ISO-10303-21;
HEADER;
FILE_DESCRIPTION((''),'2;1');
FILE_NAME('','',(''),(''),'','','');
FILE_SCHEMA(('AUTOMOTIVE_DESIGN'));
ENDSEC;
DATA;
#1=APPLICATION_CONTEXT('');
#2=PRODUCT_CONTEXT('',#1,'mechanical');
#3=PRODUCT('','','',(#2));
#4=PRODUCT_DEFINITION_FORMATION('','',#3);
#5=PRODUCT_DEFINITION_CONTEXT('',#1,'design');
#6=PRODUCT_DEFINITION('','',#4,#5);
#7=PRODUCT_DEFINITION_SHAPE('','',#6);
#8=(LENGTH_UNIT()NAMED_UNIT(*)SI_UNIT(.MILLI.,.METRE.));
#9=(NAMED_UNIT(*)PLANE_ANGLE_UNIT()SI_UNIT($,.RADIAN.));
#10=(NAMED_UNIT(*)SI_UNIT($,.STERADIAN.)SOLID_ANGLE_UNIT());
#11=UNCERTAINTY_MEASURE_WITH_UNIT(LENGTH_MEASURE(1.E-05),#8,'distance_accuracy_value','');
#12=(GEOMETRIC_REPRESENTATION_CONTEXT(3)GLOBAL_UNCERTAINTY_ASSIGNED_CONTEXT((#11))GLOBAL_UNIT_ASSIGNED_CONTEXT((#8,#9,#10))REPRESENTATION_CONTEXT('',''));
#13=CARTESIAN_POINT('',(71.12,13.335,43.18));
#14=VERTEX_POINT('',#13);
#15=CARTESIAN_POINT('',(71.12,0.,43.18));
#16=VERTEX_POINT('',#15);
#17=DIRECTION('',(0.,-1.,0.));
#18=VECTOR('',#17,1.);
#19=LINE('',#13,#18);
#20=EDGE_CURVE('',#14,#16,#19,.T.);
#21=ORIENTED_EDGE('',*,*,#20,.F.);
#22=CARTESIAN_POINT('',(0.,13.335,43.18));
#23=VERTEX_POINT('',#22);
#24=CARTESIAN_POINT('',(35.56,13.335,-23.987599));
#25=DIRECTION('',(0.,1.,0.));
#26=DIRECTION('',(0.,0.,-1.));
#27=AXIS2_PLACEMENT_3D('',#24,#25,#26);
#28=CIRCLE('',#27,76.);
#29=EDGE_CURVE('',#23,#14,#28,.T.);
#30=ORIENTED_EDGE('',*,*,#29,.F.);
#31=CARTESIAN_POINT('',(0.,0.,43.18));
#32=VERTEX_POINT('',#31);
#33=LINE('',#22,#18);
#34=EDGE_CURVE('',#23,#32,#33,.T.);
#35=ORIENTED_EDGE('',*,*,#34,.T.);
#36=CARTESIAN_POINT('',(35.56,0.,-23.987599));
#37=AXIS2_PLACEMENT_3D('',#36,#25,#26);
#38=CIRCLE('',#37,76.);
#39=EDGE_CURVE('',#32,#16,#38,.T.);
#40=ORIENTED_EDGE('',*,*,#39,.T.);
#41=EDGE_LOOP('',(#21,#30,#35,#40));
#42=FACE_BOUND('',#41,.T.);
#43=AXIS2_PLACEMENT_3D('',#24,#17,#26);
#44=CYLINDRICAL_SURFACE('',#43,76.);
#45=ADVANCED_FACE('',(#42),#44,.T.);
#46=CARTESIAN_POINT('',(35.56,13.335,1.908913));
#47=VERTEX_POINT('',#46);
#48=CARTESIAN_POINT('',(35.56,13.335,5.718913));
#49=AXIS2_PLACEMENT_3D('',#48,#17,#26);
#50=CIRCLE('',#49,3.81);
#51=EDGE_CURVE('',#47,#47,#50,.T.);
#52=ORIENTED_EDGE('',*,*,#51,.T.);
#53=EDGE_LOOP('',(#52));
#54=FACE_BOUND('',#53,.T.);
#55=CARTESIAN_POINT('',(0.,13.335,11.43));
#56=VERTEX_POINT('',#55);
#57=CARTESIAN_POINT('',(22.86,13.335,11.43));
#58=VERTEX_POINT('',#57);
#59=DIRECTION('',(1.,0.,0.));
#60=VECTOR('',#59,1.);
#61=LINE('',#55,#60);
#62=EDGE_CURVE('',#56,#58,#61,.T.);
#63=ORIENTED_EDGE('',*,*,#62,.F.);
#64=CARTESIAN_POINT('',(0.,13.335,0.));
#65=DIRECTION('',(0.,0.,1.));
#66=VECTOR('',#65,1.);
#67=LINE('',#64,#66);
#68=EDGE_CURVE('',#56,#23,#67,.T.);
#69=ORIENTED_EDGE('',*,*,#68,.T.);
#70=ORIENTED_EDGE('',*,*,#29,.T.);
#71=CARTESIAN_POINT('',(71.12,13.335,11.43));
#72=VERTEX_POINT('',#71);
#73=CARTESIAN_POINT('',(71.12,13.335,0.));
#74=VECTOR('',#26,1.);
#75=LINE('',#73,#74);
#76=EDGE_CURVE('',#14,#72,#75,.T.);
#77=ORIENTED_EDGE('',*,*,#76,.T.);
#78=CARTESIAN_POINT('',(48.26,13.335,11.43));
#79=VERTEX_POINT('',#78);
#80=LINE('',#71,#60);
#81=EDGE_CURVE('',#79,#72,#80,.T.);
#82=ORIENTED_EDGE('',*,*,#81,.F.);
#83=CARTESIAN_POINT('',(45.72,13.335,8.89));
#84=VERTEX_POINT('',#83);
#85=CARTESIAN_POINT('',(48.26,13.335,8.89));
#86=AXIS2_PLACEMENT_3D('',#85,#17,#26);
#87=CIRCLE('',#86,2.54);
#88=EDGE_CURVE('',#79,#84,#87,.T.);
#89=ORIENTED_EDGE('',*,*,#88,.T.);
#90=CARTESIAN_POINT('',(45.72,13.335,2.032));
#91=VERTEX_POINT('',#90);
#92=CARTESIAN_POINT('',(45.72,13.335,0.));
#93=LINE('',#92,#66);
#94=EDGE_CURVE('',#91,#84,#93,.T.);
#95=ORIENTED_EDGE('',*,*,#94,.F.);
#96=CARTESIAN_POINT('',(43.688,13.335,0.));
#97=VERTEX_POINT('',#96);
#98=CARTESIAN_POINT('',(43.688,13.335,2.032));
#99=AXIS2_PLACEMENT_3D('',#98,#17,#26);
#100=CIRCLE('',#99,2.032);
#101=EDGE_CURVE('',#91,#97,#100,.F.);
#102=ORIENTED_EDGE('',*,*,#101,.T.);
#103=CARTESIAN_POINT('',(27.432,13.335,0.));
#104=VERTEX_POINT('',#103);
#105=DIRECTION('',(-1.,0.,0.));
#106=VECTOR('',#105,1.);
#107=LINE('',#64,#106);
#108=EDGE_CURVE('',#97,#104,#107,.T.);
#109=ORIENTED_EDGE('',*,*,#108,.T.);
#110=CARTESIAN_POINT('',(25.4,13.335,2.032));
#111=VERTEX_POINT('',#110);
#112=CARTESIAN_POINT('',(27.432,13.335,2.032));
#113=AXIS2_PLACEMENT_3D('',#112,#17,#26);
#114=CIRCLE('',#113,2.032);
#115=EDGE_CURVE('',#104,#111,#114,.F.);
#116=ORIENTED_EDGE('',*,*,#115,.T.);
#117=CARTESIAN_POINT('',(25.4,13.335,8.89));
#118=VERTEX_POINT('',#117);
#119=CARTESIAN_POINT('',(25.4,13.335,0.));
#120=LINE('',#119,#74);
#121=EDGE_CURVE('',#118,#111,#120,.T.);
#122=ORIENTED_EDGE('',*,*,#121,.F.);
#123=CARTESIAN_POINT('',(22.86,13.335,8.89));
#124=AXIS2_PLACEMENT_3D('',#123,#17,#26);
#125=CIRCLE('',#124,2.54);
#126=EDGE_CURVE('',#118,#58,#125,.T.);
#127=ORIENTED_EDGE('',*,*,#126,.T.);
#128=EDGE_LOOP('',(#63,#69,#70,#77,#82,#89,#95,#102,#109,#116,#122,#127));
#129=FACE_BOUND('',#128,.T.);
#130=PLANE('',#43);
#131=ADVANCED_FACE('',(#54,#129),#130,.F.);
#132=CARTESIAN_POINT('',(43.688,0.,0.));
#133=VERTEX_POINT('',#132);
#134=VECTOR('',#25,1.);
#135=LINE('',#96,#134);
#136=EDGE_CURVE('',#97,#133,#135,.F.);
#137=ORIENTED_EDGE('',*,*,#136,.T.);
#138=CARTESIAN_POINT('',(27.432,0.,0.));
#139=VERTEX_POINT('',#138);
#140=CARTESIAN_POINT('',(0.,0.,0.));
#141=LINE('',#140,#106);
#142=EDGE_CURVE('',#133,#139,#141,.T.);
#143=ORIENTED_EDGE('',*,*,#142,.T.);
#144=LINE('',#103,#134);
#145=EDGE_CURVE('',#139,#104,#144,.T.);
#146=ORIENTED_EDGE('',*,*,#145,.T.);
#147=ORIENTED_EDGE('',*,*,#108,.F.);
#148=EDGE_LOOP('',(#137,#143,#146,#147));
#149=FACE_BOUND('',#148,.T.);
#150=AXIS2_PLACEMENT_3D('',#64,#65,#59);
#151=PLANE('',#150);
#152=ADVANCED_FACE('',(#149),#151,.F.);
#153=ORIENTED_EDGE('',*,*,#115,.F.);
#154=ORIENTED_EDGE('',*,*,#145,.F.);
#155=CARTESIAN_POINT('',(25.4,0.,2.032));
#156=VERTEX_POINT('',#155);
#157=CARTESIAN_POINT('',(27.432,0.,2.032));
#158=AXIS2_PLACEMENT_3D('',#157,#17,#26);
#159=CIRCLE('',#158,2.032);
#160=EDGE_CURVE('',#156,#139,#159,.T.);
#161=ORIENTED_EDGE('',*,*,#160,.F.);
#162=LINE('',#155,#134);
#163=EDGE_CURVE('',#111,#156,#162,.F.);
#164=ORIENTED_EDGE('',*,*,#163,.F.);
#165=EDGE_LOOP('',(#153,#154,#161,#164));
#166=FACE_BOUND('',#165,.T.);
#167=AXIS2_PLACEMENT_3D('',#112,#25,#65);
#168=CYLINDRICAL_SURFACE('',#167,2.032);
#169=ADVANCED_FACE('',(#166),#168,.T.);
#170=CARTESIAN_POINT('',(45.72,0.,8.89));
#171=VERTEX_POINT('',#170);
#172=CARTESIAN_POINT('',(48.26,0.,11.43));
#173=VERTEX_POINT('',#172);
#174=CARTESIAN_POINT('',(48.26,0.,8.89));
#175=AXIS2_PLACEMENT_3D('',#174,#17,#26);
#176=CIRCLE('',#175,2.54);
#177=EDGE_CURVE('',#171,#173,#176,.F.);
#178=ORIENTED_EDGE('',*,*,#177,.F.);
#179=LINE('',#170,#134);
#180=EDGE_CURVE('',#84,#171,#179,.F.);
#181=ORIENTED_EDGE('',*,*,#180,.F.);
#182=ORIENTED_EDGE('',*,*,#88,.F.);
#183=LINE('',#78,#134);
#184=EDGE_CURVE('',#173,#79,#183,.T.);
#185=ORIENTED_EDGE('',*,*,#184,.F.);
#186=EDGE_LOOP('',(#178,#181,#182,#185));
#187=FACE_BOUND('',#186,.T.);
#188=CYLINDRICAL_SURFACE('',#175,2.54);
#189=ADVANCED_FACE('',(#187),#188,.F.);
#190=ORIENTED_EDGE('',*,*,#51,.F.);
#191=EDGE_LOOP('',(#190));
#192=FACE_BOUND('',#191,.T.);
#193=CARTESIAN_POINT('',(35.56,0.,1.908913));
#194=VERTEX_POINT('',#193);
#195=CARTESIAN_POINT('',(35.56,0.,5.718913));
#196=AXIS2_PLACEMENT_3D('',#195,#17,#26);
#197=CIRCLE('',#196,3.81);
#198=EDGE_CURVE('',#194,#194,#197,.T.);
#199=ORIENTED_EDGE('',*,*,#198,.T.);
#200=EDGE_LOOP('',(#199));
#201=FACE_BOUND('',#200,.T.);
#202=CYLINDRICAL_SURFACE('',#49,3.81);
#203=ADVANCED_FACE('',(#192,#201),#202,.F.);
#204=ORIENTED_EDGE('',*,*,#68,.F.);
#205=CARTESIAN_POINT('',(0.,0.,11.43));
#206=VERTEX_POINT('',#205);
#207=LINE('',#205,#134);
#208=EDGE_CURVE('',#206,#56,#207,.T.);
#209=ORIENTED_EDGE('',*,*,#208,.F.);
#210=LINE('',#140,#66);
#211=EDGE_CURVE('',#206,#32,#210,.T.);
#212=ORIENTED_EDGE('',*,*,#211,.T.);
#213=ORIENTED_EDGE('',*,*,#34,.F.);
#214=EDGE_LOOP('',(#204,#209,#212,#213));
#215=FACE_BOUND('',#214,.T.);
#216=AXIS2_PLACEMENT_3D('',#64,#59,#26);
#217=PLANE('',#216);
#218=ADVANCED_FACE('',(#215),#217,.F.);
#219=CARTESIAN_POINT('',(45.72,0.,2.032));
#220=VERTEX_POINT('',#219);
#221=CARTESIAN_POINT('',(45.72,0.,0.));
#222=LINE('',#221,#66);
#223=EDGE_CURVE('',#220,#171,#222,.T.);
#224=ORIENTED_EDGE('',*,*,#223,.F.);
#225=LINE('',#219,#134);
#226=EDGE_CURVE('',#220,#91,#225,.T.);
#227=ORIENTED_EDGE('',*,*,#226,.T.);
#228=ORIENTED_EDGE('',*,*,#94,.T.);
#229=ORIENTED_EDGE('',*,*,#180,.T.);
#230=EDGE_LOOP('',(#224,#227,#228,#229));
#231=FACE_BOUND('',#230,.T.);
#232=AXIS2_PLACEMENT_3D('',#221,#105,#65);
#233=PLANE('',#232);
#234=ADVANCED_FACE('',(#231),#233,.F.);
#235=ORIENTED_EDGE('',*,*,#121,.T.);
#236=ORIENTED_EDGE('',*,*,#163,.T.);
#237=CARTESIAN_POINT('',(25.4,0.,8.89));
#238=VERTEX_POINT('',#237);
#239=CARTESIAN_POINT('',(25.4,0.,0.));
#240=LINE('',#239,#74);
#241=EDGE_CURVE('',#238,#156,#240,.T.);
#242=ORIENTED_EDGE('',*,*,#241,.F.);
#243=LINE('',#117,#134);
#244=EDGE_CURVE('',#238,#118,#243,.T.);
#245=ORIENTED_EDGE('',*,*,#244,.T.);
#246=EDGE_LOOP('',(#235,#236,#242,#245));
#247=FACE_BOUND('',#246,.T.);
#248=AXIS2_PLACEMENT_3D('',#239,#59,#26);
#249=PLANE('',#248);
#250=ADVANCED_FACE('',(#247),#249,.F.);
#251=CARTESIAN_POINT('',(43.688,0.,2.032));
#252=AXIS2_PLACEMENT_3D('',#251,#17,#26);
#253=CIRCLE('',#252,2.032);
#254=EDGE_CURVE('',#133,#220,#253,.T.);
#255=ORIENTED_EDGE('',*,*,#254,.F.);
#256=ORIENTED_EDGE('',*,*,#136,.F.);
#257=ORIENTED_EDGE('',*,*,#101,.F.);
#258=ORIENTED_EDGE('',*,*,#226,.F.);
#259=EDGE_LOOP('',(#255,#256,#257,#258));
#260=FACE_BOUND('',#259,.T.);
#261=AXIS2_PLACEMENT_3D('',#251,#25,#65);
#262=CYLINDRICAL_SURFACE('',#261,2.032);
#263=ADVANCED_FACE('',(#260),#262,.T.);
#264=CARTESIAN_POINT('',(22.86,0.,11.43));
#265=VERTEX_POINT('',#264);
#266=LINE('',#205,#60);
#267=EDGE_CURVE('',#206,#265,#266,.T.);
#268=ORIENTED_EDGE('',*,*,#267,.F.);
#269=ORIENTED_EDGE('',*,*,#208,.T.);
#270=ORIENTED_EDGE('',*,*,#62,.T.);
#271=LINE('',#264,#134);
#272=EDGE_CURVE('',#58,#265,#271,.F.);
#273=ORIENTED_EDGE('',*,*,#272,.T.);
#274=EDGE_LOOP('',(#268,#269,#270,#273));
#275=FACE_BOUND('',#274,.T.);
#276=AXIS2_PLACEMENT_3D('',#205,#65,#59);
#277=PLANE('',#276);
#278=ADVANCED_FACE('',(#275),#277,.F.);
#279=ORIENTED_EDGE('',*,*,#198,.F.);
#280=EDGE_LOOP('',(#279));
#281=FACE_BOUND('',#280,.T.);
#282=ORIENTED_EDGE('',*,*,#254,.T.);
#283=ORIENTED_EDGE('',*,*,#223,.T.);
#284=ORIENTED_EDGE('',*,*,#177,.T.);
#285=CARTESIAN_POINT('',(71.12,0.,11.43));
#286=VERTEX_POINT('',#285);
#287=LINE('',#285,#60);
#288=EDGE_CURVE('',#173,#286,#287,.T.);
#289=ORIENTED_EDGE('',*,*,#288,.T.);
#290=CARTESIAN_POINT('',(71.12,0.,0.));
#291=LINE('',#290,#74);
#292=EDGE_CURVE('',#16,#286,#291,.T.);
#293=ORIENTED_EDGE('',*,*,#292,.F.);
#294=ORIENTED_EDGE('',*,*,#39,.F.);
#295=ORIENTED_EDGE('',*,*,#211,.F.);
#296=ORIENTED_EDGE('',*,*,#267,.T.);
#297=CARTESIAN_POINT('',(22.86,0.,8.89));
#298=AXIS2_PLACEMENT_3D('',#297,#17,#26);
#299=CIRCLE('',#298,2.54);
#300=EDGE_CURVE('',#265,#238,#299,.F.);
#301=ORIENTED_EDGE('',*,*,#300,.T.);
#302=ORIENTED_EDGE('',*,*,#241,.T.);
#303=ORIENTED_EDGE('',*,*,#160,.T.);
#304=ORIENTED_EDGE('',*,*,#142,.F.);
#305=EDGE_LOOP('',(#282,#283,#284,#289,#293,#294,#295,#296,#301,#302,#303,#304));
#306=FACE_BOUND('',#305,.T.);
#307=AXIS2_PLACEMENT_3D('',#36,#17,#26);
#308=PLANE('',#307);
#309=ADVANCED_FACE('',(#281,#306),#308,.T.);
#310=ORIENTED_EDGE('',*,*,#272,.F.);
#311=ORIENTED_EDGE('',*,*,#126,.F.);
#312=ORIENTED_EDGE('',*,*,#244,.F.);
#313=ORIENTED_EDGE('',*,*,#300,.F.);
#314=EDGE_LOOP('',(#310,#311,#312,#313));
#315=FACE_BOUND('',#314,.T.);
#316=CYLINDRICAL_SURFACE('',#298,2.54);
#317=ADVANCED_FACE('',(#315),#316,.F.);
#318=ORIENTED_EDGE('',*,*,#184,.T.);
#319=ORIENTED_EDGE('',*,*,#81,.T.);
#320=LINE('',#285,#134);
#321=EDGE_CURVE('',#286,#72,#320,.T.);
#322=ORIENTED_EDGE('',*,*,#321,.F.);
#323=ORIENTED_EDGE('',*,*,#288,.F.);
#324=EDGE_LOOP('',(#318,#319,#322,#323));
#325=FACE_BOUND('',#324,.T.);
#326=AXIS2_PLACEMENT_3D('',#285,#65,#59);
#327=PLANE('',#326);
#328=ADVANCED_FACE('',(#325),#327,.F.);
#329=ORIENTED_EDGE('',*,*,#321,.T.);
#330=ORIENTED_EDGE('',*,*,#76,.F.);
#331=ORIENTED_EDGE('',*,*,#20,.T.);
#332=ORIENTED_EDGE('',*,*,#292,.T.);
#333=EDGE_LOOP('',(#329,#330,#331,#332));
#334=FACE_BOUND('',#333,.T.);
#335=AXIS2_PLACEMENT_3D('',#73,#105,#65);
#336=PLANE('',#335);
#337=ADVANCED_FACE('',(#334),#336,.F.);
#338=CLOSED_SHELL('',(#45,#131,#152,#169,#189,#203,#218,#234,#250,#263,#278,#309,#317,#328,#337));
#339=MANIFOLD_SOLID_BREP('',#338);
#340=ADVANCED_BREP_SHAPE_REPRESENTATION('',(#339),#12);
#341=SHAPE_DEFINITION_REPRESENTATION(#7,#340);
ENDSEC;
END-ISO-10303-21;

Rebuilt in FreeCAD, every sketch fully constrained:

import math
import FreeCAD as App
import Part
import Sketcher
from FreeCAD import Vector
Q = App.Units.Quantity


def edges_at(feature, points):
    """Names of the edges that pass closest to the given points."""
    edges = feature.Shape.Edges
    near = lambda p: min(range(len(edges)), key=lambda i: edges[i].distToShape(Part.Vertex(*p))[0])
    return sorted({f"Edge{near(p) + 1}" for p in points})


def add_polygon(sketch, points):
    """Adds a closed chain of lines whose ends are joined by coincident constraints."""
    first, n = sketch.GeometryCount, len(points)
    for a, b in zip(points, points[1:] + points[:1]):
        sketch.addGeometry(Part.LineSegment(App.Vector(*a, 0), App.Vector(*b, 0)), False)
    for i in range(n):
        sketch.addConstraint(Sketcher.Constraint("Coincident", first + i, 2, first + (i + 1) % n, 1))

doc = App.newDocument("Part")
body = doc.addObject("PartDesign::Body", "Body")

# Sketch on XZ plane
sketch1 = body.newObject("Sketcher::SketchObject", "Sketch")
sketch1.AttachmentSupport = (doc.getObject("XZ_Plane"), [""])
sketch1.MapMode = "FlatFace"
sketch1.addGeometry(Part.LineSegment(Vector(71.12, 0, 0), Vector(0, 0, 0)), False)
sketch1.addGeometry(Part.LineSegment(Vector(0, 0, 0), Vector(0, 43.18, 0)), False)
sketch1.addGeometry(Part.ArcOfCircle(Part.Circle(Vector(35.56, -23.987599, 0), Vector(0, 0, 1), 76), math.radians(62.102274), math.radians(117.897726)), False)
sketch1.addGeometry(Part.LineSegment(Vector(71.12, 43.18, 0), Vector(71.12, 0, 0)), False)
sketch1.addConstraint(Sketcher.Constraint("Coincident", 0, 2, 1, 1))
sketch1.addConstraint(Sketcher.Constraint("Coincident", 1, 2, 2, 2))
sketch1.addConstraint(Sketcher.Constraint("Coincident", 2, 1, 3, 1))
sketch1.addConstraint(Sketcher.Constraint("Coincident", 3, 2, 0, 1))
sketch1.addConstraint(Sketcher.Constraint("Horizontal", 0))
sketch1.addConstraint(Sketcher.Constraint("Vertical", 1))
sketch1.addConstraint(Sketcher.Constraint("Vertical", 3))
sketch1.addConstraint(Sketcher.Constraint("Coincident", 0, 2, -1, 1))
sketch1.addConstraint(Sketcher.Constraint("Horizontal", 1, 2, 2, 1))
sketch1.addConstraint(Sketcher.Constraint("DistanceX", 0, 2, 0, 1, Q("2.8 in")))
sketch1.addConstraint(Sketcher.Constraint("DistanceY", 1, 1, 1, 2, Q("1.7 in")))
sketch1.addConstraint(Sketcher.Constraint("Radius", 2, Q("76 mm")))
pad1 = body.newObject("PartDesign::Pad", "Pad")
pad1.Profile = sketch1
pad1.Length = Q("0.525 in")
pad1.Reversed = True

# Sketch on XZ plane
sketch2 = body.newObject("Sketcher::SketchObject", "Sketch001")
sketch2.AttachmentSupport = (doc.getObject("XZ_Plane"), [""])
sketch2.MapMode = "FlatFace"
sketch2.AttachmentOffset = App.Placement(Vector(0, 0, -0.525 * 25.4), App.Rotation())
add_polygon(sketch2, [(45.72, 0), (45.72, 11.43), (71.12, 11.43), (71.12, 0)])  # lines 0-3
add_polygon(sketch2, [(0, 0), (0, 11.43), (25.4, 11.43), (25.4, 0)])  # lines 4-7
sketch2.addConstraint(Sketcher.Constraint("Vertical", 0))
sketch2.addConstraint(Sketcher.Constraint("Horizontal", 1))
sketch2.addConstraint(Sketcher.Constraint("Vertical", 2))
sketch2.addConstraint(Sketcher.Constraint("Horizontal", 3))
sketch2.addConstraint(Sketcher.Constraint("Vertical", 4))
sketch2.addConstraint(Sketcher.Constraint("Horizontal", 5))
sketch2.addConstraint(Sketcher.Constraint("Vertical", 6))
sketch2.addConstraint(Sketcher.Constraint("Horizontal", 7))
sketch2.addConstraint(Sketcher.Constraint("Coincident", 7, 2, -1, 1))
sketch2.addConstraint(Sketcher.Constraint("PointOnObject", 2, 2, -1))
sketch2.addConstraint(Sketcher.Constraint("Horizontal", 1, 2, 4, 2))
sketch2.addConstraint(Sketcher.Constraint("Equal", 3, 5))
sketch2.addConstraint(Sketcher.Constraint("DistanceX", 1, 1, 1, 2, Q("1 in")))
sketch2.addConstraint(Sketcher.Constraint("DistanceY", 0, 1, 0, 2, Q("0.45 in")))
sketch2.addConstraint(Sketcher.Constraint("DistanceX", -1, 1, 0, 2, Q("1.8 in")))
pocket1 = body.newObject("PartDesign::Pocket", "Pocket")
pocket1.Profile = sketch2
pocket1.Type = "ThroughAll"
pocket1.Reversed = True
doc.recompute()

fillet = body.newObject("PartDesign::Fillet", "Fillet")
fillet.Base = (pocket1, edges_at(pocket1, [(25.4, 6.668, 11.43), (45.72, 6.668, 11.43)]))
fillet.Radius = Q("0.1 in")
doc.recompute()

fillet2 = body.newObject("PartDesign::Fillet", "Fillet001")
fillet2.Base = (fillet, edges_at(fillet, [(25.4, 6.668, 0), (45.72, 6.668, 0)]))
fillet2.Radius = Q("0.08 in")

# Sketch on XZ plane
sketch3 = body.newObject("Sketcher::SketchObject", "Sketch002")
sketch3.AttachmentSupport = (doc.getObject("XZ_Plane"), [""])
sketch3.MapMode = "FlatFace"
sketch3.addGeometry(Part.Circle(Vector(35.56, 5.718913, 0), Vector(0, 0, 1), 3.81), False)
sketch3.addConstraint(Sketcher.Constraint("Diameter", 0, Q("0.3 in")))
sketch3.addConstraint(Sketcher.Constraint("DistanceX", -1, 1, 0, 3, Q("1.4 in")))
sketch3.addConstraint(Sketcher.Constraint("DistanceY", -1, 1, 0, 3, Q("5.718913 mm")))
pocket2 = body.newObject("PartDesign::Pocket", "Pocket001")
pocket2.Profile = sketch3
pocket2.Type = "ThroughAll"

doc.recompute()
